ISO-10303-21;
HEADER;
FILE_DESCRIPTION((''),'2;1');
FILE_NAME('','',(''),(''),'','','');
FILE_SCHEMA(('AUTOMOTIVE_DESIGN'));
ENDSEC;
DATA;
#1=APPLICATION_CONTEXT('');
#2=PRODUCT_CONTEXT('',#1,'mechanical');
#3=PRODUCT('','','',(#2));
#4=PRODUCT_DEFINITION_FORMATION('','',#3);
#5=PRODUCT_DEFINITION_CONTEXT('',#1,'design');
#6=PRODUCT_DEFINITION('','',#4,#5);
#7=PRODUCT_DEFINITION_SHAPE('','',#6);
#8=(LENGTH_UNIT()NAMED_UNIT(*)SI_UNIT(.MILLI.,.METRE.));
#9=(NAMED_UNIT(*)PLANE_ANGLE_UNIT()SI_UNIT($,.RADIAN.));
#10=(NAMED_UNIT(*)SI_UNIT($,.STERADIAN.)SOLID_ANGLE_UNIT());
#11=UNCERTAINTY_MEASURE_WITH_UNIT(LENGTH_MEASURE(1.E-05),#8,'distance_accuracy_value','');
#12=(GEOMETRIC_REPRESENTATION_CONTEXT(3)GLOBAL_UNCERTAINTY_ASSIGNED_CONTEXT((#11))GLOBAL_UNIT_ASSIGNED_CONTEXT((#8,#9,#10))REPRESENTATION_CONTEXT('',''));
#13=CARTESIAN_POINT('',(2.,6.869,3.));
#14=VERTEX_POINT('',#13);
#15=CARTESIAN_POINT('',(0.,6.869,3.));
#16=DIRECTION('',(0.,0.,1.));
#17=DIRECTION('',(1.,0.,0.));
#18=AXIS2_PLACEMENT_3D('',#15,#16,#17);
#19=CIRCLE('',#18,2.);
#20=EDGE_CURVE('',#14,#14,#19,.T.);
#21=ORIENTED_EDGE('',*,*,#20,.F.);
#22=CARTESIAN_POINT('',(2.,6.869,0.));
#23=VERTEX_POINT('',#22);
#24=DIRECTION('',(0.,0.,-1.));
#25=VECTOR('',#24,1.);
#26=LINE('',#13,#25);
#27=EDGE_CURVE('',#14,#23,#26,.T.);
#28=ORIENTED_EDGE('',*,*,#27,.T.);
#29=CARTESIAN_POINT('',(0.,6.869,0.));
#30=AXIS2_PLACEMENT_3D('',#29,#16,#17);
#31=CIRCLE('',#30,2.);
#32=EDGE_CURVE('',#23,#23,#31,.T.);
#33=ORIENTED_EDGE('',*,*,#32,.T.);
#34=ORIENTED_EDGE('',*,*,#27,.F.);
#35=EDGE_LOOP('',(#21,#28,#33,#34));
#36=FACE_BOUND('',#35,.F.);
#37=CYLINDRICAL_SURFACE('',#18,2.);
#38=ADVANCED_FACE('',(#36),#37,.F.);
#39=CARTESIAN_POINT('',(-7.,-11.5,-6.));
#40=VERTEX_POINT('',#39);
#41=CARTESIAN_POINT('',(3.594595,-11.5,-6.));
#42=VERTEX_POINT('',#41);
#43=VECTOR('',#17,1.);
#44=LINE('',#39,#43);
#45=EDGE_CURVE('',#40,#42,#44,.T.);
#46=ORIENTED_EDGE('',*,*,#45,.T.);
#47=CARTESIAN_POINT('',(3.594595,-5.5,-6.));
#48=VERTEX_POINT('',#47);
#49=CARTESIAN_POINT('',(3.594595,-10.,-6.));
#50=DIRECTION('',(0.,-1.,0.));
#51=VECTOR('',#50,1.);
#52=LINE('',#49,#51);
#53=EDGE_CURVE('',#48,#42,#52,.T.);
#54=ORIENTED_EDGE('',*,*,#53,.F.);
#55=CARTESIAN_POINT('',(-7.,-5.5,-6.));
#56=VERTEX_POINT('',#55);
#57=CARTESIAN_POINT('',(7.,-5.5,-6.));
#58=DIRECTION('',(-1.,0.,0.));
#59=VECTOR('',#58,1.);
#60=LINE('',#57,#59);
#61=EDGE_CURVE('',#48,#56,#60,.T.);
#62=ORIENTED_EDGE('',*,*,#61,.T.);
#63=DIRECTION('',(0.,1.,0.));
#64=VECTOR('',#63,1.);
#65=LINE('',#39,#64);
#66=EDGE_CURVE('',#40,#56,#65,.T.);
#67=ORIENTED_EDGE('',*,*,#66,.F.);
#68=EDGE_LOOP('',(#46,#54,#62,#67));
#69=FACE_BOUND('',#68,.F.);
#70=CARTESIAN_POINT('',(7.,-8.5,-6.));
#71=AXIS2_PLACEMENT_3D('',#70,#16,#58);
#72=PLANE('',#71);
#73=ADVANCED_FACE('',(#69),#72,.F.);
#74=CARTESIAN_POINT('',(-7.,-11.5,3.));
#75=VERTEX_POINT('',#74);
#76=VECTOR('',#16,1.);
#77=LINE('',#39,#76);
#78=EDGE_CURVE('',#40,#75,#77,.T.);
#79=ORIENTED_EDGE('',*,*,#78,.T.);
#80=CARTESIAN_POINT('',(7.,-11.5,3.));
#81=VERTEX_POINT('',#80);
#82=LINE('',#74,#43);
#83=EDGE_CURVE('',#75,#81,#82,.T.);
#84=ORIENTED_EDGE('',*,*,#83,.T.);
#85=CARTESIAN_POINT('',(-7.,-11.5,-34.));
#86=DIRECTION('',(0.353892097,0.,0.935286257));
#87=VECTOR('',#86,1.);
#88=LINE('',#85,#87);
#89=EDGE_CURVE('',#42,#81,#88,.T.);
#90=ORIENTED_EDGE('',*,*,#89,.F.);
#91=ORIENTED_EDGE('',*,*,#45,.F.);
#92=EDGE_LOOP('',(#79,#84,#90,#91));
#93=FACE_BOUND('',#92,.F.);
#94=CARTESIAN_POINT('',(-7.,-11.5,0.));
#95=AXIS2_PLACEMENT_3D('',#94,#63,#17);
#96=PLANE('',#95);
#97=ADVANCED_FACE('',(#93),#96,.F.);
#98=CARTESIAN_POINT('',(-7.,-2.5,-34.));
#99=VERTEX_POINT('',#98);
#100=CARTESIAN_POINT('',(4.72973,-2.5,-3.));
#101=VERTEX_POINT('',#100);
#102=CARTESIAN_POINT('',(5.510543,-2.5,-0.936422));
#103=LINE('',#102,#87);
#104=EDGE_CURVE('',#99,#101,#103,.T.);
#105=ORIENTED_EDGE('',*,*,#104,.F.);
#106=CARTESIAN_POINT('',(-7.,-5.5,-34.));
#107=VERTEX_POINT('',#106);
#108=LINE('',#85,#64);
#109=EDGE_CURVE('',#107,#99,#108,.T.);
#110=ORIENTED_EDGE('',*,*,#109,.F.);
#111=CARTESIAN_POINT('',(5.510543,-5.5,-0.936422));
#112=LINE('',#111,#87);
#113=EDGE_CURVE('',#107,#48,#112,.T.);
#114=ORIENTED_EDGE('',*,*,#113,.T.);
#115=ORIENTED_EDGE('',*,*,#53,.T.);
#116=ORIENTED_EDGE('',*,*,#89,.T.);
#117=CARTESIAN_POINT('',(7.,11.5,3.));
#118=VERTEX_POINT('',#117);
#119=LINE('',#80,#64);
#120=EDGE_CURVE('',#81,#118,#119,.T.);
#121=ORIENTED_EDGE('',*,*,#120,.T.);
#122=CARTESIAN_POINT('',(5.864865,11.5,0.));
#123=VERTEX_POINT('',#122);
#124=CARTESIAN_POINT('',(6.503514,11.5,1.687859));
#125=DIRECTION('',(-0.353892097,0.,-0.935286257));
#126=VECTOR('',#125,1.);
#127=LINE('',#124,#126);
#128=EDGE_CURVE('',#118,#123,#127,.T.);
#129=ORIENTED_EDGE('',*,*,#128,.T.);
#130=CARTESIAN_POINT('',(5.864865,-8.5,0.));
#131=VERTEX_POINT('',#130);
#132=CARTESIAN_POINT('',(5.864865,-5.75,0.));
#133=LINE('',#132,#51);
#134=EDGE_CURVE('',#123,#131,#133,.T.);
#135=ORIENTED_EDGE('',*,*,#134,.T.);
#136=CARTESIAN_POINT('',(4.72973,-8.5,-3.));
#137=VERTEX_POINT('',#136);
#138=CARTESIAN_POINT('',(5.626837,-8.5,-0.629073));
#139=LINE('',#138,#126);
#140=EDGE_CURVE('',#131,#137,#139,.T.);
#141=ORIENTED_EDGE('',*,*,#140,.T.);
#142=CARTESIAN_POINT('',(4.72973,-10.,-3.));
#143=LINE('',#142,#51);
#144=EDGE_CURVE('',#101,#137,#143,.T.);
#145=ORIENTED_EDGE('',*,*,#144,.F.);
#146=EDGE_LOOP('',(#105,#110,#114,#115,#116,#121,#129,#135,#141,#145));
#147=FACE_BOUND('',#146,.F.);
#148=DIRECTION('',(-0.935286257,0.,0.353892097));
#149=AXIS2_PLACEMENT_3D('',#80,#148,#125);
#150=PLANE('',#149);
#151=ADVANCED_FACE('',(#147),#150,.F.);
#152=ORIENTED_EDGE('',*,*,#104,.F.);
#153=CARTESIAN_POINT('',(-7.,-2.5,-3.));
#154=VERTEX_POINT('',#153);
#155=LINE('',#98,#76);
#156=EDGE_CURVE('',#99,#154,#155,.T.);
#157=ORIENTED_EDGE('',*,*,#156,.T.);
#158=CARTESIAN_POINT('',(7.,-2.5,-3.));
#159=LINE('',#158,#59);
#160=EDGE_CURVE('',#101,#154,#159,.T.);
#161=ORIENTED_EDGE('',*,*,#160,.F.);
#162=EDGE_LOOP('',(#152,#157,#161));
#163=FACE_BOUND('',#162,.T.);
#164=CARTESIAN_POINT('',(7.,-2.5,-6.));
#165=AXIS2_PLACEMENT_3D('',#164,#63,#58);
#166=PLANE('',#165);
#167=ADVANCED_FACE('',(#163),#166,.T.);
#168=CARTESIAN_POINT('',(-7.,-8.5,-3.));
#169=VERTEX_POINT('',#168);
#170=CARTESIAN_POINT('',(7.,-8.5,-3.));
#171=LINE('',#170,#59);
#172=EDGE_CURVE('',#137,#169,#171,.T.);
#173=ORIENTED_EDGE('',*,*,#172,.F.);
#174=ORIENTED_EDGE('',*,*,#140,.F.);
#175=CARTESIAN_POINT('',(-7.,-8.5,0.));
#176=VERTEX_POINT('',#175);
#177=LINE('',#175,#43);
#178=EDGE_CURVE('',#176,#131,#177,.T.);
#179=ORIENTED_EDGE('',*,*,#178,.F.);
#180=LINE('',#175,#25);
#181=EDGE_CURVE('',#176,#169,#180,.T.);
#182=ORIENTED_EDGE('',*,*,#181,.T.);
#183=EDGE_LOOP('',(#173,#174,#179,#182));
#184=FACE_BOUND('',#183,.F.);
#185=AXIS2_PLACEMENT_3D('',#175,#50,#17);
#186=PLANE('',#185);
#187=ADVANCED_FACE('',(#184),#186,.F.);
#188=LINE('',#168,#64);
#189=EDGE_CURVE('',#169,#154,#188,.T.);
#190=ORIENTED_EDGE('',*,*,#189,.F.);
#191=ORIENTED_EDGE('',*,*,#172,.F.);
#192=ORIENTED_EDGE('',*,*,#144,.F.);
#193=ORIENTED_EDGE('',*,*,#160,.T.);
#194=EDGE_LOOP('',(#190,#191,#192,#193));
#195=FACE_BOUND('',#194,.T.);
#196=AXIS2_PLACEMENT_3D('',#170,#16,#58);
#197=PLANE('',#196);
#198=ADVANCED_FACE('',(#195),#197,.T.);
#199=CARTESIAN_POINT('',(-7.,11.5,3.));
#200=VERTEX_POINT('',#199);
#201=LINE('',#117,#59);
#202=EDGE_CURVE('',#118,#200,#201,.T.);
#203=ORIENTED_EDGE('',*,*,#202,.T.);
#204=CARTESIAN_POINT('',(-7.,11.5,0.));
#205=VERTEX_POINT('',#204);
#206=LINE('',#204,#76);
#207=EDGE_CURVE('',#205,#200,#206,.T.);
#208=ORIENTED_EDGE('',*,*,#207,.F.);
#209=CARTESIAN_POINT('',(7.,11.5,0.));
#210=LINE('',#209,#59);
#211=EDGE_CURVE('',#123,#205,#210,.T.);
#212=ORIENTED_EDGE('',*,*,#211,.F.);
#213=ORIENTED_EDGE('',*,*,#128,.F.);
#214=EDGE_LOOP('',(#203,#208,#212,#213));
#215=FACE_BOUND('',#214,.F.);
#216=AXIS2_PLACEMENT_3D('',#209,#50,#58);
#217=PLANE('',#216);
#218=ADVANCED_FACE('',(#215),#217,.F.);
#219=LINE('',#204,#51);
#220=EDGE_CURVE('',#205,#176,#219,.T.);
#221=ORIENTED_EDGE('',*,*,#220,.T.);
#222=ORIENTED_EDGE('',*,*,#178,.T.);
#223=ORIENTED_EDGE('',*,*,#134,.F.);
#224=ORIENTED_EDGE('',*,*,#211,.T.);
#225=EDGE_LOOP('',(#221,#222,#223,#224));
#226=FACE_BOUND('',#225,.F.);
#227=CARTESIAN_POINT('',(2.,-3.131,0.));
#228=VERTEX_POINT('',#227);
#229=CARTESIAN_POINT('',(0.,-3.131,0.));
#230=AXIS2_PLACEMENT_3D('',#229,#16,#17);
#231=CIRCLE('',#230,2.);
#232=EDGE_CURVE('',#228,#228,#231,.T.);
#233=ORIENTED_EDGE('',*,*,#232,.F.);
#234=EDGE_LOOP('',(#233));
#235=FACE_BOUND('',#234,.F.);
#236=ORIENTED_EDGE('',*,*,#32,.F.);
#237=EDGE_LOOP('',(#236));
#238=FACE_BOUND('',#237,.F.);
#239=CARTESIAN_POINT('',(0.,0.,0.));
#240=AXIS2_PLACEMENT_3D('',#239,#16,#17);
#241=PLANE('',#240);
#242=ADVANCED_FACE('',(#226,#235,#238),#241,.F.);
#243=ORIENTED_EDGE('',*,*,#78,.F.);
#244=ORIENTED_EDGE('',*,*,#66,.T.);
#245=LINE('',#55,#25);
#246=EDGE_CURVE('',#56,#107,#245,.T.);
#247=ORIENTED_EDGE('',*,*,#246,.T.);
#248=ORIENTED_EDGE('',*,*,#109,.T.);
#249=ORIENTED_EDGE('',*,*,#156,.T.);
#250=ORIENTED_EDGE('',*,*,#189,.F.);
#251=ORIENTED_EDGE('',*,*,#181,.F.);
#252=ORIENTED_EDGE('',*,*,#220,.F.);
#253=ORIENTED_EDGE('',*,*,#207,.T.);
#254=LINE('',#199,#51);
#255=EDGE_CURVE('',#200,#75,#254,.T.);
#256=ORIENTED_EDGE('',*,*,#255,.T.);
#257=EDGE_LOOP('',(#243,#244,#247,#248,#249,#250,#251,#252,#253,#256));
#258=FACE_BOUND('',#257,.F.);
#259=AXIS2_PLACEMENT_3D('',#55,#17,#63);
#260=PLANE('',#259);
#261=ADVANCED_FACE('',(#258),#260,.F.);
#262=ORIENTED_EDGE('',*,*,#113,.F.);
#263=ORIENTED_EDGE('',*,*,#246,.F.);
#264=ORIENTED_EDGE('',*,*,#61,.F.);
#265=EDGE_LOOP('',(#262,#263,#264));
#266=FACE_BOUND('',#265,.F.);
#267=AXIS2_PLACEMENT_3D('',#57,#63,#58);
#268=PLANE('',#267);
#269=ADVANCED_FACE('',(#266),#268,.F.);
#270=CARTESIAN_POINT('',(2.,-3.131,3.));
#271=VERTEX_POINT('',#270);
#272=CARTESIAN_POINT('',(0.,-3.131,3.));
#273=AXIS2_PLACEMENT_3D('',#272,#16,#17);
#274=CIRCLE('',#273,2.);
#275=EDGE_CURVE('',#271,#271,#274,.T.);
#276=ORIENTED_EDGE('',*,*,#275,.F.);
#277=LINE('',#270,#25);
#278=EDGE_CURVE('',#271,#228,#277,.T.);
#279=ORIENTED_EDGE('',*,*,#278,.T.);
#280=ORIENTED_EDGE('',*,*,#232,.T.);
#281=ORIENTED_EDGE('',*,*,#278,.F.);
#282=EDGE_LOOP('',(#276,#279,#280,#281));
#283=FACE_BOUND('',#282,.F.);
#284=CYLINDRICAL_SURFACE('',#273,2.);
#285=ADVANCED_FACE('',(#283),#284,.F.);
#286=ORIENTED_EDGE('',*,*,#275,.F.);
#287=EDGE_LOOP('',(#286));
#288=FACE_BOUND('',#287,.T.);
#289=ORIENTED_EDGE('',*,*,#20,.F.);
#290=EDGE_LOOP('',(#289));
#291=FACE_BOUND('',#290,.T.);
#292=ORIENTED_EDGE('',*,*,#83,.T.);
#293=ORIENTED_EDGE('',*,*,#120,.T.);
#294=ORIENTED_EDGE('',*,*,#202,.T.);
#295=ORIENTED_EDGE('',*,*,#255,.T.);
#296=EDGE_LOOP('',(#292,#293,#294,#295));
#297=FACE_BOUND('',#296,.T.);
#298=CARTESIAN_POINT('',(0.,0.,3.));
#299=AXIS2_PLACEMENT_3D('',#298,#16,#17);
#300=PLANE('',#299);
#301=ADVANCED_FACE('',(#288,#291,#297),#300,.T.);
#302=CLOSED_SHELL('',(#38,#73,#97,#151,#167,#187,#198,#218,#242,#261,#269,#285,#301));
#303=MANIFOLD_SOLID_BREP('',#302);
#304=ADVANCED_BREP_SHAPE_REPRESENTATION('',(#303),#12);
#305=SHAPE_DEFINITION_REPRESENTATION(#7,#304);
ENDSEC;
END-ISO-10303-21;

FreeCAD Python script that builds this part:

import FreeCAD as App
import Part
import Sketcher


def add_polygon(sketch, points):
    """Adds a closed chain of lines whose ends are joined by coincident constraints."""
    first, n = sketch.GeometryCount, len(points)
    for a, b in zip(points, points[1:] + points[:1]):
        sketch.addGeometry(Part.LineSegment(App.Vector(*a, 0), App.Vector(*b, 0)), False)
    for i in range(n):
        sketch.addConstraint(Sketcher.Constraint("Coincident", first + i, 2, first + (i + 1) % n, 1))

doc = App.newDocument("Part")
params = doc.addObject("Spreadsheet::Sheet", "Params")
for row, (alias, value) in enumerate([
    ("sketch1_width", "14 mm"),
    ("sketch1_height", "23 mm"),
    ("pad1_length", "3 mm"),
    ("sketch2_height", "3 mm"),
    ("sketch2_width", "14 mm"),
    ("pad2_length", "6 mm"),
    ("sketch3_height", "3 mm"),
    ("sketch3_width", "14 mm"),
    ("pad3_length", "6 mm"),
    ("sketch4_height", "3 mm"),
    ("sketch4_width", "14 mm"),
    ("pad4_length", "28 mm"),
    ("sketch5_diameter", "4 mm"),
    ("sketch6_width", "14 mm"),
    ("sketch6_height", "37 mm"),
    ("pocket2_length", "28 mm"),
], start=1):
    params.set(f"A{row}", alias)
    params.set(f"B{row}", "=" + value)
    params.setAlias(f"B{row}", alias)

body = doc.addObject("PartDesign::Body", "Body")

# Sketch on XY plane
sketch1 = body.newObject("Sketcher::SketchObject", "Sketch")
sketch1.AttachmentSupport = (doc.getObject("XY_Plane"), [""])
sketch1.MapMode = "FlatFace"
add_polygon(sketch1, [(-7, 12), (-7, -12), (7, -12), (7, 12)])  # lines 0-3
sketch1.addConstraint([
    Sketcher.Constraint("Vertical", 0),
    Sketcher.Constraint("Horizontal", 1),
    Sketcher.Constraint("Vertical", 2),
    Sketcher.Constraint("Horizontal", 3),
    Sketcher.Constraint("Symmetric", 0, 2, 2, 2, -1, 1),
    Sketcher.Constraint("DistanceX", 1, 1, 1, 2, 14.0),
    Sketcher.Constraint("DistanceY", 0, 2, 0, 1, 23.0),
])
sketch1.setExpression("Constraints[9]", "Params.sketch1_width")
sketch1.setExpression("Constraints[10]", "Params.sketch1_height")
pad1 = body.newObject("PartDesign::Pad", "Pad")
pad1.Profile = sketch1
pad1.setExpression("Length", "Params.pad1_length")

# Sketch on XY plane
sketch2 = body.newObject("Sketcher::SketchObject", "Sketch001")
sketch2.AttachmentSupport = (doc.getObject("XY_Plane"), [""])
sketch2.MapMode = "FlatFace"
add_polygon(sketch2, [(7, -11.5), (-7, -11.5), (-7, -8.5), (7, -8.5)])  # lines 0-3
sketch2.addConstraint([
    Sketcher.Constraint("Horizontal", 0),
    Sketcher.Constraint("Vertical", 1),
    Sketcher.Constraint("Horizontal", 2),
    Sketcher.Constraint("Vertical", 3),
    Sketcher.Constraint("DistanceY", 1, 1, 1, 2, 3.0),
    Sketcher.Constraint("DistanceX", 0, 2, 0, 1, 14.0),
    Sketcher.Constraint("DistanceX", 0, 2, -1, 1, 7.0),
    Sketcher.Constraint("DistanceY", 0, 2, -1, 1, 11.5),
])
sketch2.setExpression("Constraints[8]", "Params.sketch2_height")
sketch2.setExpression("Constraints[9]", "Params.sketch2_width")
pad2 = body.newObject("PartDesign::Pad", "Pad001")
pad2.Profile = sketch2
pad2.setExpression("Length", "Params.pad2_length")
pad2.Reversed = True

# Sketch on XZ plane
sketch3 = body.newObject("Sketcher::SketchObject", "Sketch002")
sketch3.AttachmentSupport = (doc.getObject("XZ_Plane"), [""])
sketch3.MapMode = "FlatFace"
sketch3.AttachmentOffset = App.Placement(App.Vector(0, 0, 8.5), App.Rotation())
add_polygon(sketch3, [(7, -3), (7, -6), (-7, -6), (-7, -3)])  # lines 0-3
sketch3.addConstraint([
    Sketcher.Constraint("Vertical", 0),
    Sketcher.Constraint("Horizontal", 1),
    Sketcher.Constraint("Vertical", 2),
    Sketcher.Constraint("Horizontal", 3),
    Sketcher.Constraint("DistanceY", 0, 2, 0, 1, 3.0),
    Sketcher.Constraint("DistanceY", 2, 2, -1, 1, 3.0),
    Sketcher.Constraint("DistanceX", 1, 2, 1, 1, 14.0),
    Sketcher.Constraint("DistanceX", -1, 1, 0, 2, 7.0),
])
sketch3.setExpression("Constraints[8]", "Params.sketch3_height")
sketch3.setExpression("Constraints[10]", "Params.sketch3_width")
pad3 = body.newObject("PartDesign::Pad", "Pad002")
pad3.Profile = sketch3
pad3.setExpression("Length", "Params.pad3_length")
pad3.Reversed = True

# Sketch on XY plane
sketch4 = body.newObject("Sketcher::SketchObject", "Sketch003")
sketch4.AttachmentSupport = (doc.getObject("XY_Plane"), [""])
sketch4.MapMode = "FlatFace"
sketch4.AttachmentOffset = App.Placement(App.Vector(0, 0, -6), App.Rotation())
add_polygon(sketch4, [(7, -2.5), (7, -5.5), (-7, -5.5), (-7, -2.5)])  # lines 0-3
sketch4.addConstraint([
    Sketcher.Constraint("Vertical", 0),
    Sketcher.Constraint("Horizontal", 1),
    Sketcher.Constraint("Vertical", 2),
    Sketcher.Constraint("Horizontal", 3),
    Sketcher.Constraint("DistanceY", 0, 2, 0, 1, 3.0),
    Sketcher.Constraint("DistanceX", 1, 2, 1, 1, 14.0),
    Sketcher.Constraint("DistanceX", -1, 1, 0, 2, 7.0),
    Sketcher.Constraint("DistanceY", 0, 2, -1, 1, 5.5),
])
sketch4.setExpression("Constraints[8]", "Params.sketch4_height")
sketch4.setExpression("Constraints[9]", "Params.sketch4_width")
pad4 = body.newObject("PartDesign::Pad", "Pad003")
pad4.Profile = sketch4
pad4.setExpression("Length", "Params.pad4_length")
pad4.Reversed = True

# Sketch on XY plane
sketch5 = body.newObject("Sketcher::SketchObject", "Sketch004")
sketch5.AttachmentSupport = (doc.getObject("XY_Plane"), [""])
sketch5.MapMode = "FlatFace"
sketch5.AttachmentOffset = App.Placement(App.Vector(0, 0, 3), App.Rotation())
sketch5.addGeometry([
    Part.Circle(App.Vector(0, -3.1, 0), App.Vector(0, 0, 1), 2),
    Part.Circle(App.Vector(0, 6.9, 0), App.Vector(0, 0, 1), 2),
], False)
sketch5.addConstraint([
    Sketcher.Constraint("Equal", 0, 1),
    Sketcher.Constraint("PointOnObject", 0, 3, -2),
    Sketcher.Constraint("PointOnObject", 1, 3, -2),
    Sketcher.Constraint("Diameter", 0, 4.0),
    Sketcher.Constraint("DistanceY", 0, 3, 1, 3, 10.0),
    Sketcher.Constraint("DistanceY", 0, 3, -1, 1, 3.131),
])
sketch5.setExpression("Constraints[3]", "Params.sketch5_diameter")
pocket1 = body.newObject("PartDesign::Pocket", "Pocket")
pocket1.Profile = sketch5
pocket1.Type = "UpToFirst"

# Sketch on XZ plane
sketch6 = body.newObject("Sketcher::SketchObject", "Sketch005")
sketch6.AttachmentSupport = (doc.getObject("XZ_Plane"), [""])
sketch6.MapMode = "FlatFace"
sketch6.AttachmentOffset = App.Placement(App.Vector(0, 0, 11.5), App.Rotation())
add_polygon(sketch6, [(7, 3), (-7, -34), (7, -34)])  # lines 0-2
sketch6.addConstraint([
    Sketcher.Constraint("Horizontal", 1),
    Sketcher.Constraint("Vertical", 2),
    Sketcher.Constraint("DistanceX", 1, 1, 1, 2, 14.0),
    Sketcher.Constraint("DistanceY", 2, 1, 2, 2, 37.0),
    Sketcher.Constraint("DistanceX", 0, 2, -1, 1, 7.0),
    Sketcher.Constraint("DistanceY", 0, 2, -1, 1, 34.0),
])
sketch6.setExpression("Constraints[5]", "Params.sketch6_width")
sketch6.setExpression("Constraints[6]", "Params.sketch6_height")
pocket2 = body.newObject("PartDesign::Pocket", "Pocket001")
pocket2.Profile = sketch6
pocket2.setExpression("Length", "Params.pocket2_length")

doc.recompute()
